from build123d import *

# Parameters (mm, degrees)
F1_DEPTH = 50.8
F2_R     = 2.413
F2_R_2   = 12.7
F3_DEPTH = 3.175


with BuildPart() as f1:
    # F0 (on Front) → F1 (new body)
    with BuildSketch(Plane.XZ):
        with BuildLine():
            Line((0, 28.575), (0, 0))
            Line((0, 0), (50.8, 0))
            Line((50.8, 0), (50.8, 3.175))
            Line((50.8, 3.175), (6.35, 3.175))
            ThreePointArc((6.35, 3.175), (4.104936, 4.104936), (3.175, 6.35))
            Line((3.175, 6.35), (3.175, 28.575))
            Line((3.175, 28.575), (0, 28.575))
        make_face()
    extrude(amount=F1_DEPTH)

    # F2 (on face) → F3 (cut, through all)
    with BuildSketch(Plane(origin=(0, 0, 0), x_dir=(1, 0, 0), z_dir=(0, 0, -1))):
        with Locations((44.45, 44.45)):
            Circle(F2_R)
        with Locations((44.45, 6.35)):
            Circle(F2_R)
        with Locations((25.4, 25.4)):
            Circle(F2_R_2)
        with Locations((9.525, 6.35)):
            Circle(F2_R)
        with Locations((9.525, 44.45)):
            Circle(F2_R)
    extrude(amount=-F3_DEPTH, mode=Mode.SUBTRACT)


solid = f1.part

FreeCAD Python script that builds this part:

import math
import FreeCAD as App
import Part
import Sketcher

V = App.Vector
Q = App.Units.Quantity

doc = App.newDocument("Part")
params = doc.addObject("Spreadsheet::Sheet", "Params")
for row, (alias, value) in enumerate([
    ("sketch1_width", "2 in"),
    ("sketch1_radius", "0.125 in"),
    ("sketch1_width2", "1.75 in"),
    ("pad1_length", "2 in"),
    ("sketch2_diameter", "1 in"),
    ("sketch2_diameter2", "0.19 in"),
], start=1):
    params.set(f"A{row}", alias)
    params.set(f"B{row}", "=" + value)
    params.setAlias(f"B{row}", alias)

body = doc.addObject("PartDesign::Body", "Body")

# Sketch on XZ plane
sketch1 = body.newObject("Sketcher::SketchObject", "Sketch")
sketch1.AttachmentSupport = (doc.getObject("XZ_Plane"), [""])
sketch1.MapMode = "FlatFace"
sketch1.addGeometry([
    Part.LineSegment(V(0, 28.6, 0), V(0, 0, 0)),  # 0
    Part.LineSegment(V(0, 0, 0), V(50.8, 0, 0)),  # 1
    Part.LineSegment(V(50.8, 0, 0), V(50.8, 3.2, 0)),  # 2
    Part.LineSegment(V(50.8, 3.2, 0), V(6.3, 3.2, 0)),  # 3
    Part.ArcOfCircle(Part.Circle(V(6.4, 6.4, 0), V(0, 0, 1), 3.2), math.radians(-180), math.radians(-90)),  # 4
    Part.LineSegment(V(3.2, 6.3, 0), V(3.2, 28.6, 0)),  # 5
    Part.LineSegment(V(3.2, 28.6, 0), V(0, 28.6, 0)),  # 6
], False)
sketch1.addConstraint([
    Sketcher.Constraint("Coincident", 0, 2, 1, 1),
    Sketcher.Constraint("Coincident", 1, 2, 2, 1),
    Sketcher.Constraint("Coincident", 2, 2, 3, 1),
    Sketcher.Constraint("Tangent", 3, 2, 4, 2),
    Sketcher.Constraint("Tangent", 4, 1, 5, 1),
    Sketcher.Constraint("Coincident", 5, 2, 6, 1),
    Sketcher.Constraint("Coincident", 6, 2, 0, 1),
    Sketcher.Constraint("Vertical", 0),
    Sketcher.Constraint("Horizontal", 1),
    Sketcher.Constraint("Vertical", 2),
    Sketcher.Constraint("Horizontal", 3),
    Sketcher.Constraint("Vertical", 5),
    Sketcher.Constraint("Horizontal", 6),
    Sketcher.Constraint("Coincident", 0, 2, -1, 1),
    Sketcher.Constraint("Equal", 6, 2),
    Sketcher.Constraint("DistanceX", 1, 1, 1, 2, Q("2 in")),
    Sketcher.Constraint("Radius", 4, Q("0.125 in")),
    Sketcher.Constraint("DistanceY", 3, 2, 5, 2, Q("1 in")),
    Sketcher.Constraint("DistanceX", 3, 2, 3, 1, Q("1.75 in")),
])
sketch1.setExpression("Constraints[15]", "Params.sketch1_width")
sketch1.setExpression("Constraints[16]", "Params.sketch1_radius")
sketch1.setExpression("Constraints[18]", "Params.sketch1_width2")
pad1 = body.newObject("PartDesign::Pad", "Pad")
pad1.Profile = sketch1
pad1.setExpression("Length", "Params.pad1_length")

# Sketch on XY plane
sketch2 = body.newObject("Sketcher::SketchObject", "Sketch001")
sketch2.AttachmentSupport = (doc.getObject("XY_Plane"), [""])
sketch2.MapMode = "FlatFace"
sketch2.addGeometry([
    Part.Circle(V(44.5, -44.5, 0), V(0, 0, 1), 2.4),  # 0
    Part.Circle(V(44.5, -6.3, 0), V(0, 0, 1), 2.4),  # 1
    Part.Circle(V(25.4, -25.4, 0), V(0, 0, 1), 12.7),  # 2
    Part.Circle(V(9.5, -6.3, 0), V(0, 0, 1), 2.4),  # 3
    Part.Circle(V(9.5, -44.5, 0), V(0, 0, 1), 2.4),  # 4
], False)
sketch2.addConstraint([
    Sketcher.Constraint("Equal", 0, 1),
    Sketcher.Constraint("Equal", 1, 3),
    Sketcher.Constraint("Equal", 3, 4),
    Sketcher.Constraint("Horizontal", 1, 3, 3, 3),
    Sketcher.Constraint("Horizontal", 0, 3, 4, 3),
    Sketcher.Constraint("Vertical", 0, 3, 1, 3),
    Sketcher.Constraint("Vertical", 3, 3, 4, 3),
    Sketcher.Constraint("Diameter", 2, Q("1 in")),
    Sketcher.Constraint("Diameter", 0, Q("0.19 in")),
    Sketcher.Constraint("DistanceX", -1, 1, 2, 3, Q("1 in")),
    Sketcher.Constraint("DistanceY", 2, 3, -1, 1, Q("1 in")),
    Sketcher.Constraint("DistanceY", 0, 3, 1, 3, Q("1.5 in")),
    Sketcher.Constraint("DistanceX", -1, 1, 0, 3, Q("1.75 in")),
    Sketcher.Constraint("DistanceY", 0, 3, -1, 1, Q("1.75 in")),
    Sketcher.Constraint("DistanceX", -1, 1, 3, 3, Q("0.375 in")),
])
sketch2.setExpression("Constraints[7]", "Params.sketch2_diameter")
sketch2.setExpression("Constraints[8]", "Params.sketch2_diameter2")
pocket1 = body.newObject("PartDesign::Pocket", "Pocket")
pocket1.Profile = sketch2
pocket1.Type = "ThroughAll"
pocket1.Reversed = True

doc.recompute()
